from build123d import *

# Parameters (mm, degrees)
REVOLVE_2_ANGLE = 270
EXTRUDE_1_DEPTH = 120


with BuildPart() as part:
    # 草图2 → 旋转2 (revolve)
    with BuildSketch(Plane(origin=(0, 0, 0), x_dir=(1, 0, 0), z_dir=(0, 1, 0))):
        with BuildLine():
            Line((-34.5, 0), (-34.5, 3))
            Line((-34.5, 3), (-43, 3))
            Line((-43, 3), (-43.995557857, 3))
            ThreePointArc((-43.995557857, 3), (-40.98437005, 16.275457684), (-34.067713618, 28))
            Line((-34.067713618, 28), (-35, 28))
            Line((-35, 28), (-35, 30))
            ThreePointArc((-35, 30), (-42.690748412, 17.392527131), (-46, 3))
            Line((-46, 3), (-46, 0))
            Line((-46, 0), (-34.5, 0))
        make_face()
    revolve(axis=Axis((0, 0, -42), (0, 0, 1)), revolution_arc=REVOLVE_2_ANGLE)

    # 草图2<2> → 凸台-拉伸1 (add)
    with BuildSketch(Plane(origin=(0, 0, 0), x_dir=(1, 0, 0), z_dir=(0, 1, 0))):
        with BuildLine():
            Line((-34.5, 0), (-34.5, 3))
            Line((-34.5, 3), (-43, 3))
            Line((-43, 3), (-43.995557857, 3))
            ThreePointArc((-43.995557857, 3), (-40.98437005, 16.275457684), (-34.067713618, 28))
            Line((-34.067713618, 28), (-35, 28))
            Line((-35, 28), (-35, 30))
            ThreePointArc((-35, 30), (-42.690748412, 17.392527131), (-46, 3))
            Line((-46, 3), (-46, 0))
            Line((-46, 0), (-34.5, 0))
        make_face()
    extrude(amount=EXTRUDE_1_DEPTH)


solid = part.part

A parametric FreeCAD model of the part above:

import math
import FreeCAD as App
import Part
import Sketcher
Q = App.Units.Quantity

doc = App.newDocument("Part")
body = doc.addObject("PartDesign::Body", "Body")

# Sketch on XZ plane
sketch1 = body.newObject("Sketcher::SketchObject", "Sketch")
sketch1.AttachmentSupport = (doc.getObject("XZ_Plane"), [""])
sketch1.MapMode = "FlatFace"
sketch1.addGeometry([
    Part.LineSegment(App.Vector(-34.5, 0, 0), App.Vector(-34.5, -3, 0)),  # 0
    Part.LineSegment(App.Vector(-34.5, -3, 0), App.Vector(-44, -3, 0)),  # 1
    Part.ArcOfCircle(Part.Circle(App.Vector(0, 0, 0), App.Vector(0, 0, 1), 44.1), math.radians(-176), math.radians(-141)),  # 2
    Part.LineSegment(App.Vector(-34.1, -28, 0), App.Vector(-35, -28, 0)),  # 3
    Part.LineSegment(App.Vector(-35, -28, 0), App.Vector(-35, -30, 0)),  # 4
    Part.ArcOfCircle(Part.Circle(App.Vector(0, 0, 0), App.Vector(0, 0, 1), 46.1), math.radians(-176), math.radians(-139)),  # 5
    Part.LineSegment(App.Vector(-46, -3, 0), App.Vector(-46, 0, 0)),  # 6
    Part.LineSegment(App.Vector(-46, 0, 0), App.Vector(-34.5, 0, 0)),  # 7
], False)
sketch1.addConstraint([
    Sketcher.Constraint("Coincident", 0, 2, 1, 1),
    Sketcher.Constraint("Coincident", 1, 2, 2, 1),
    Sketcher.Constraint("Coincident", 2, 2, 3, 1),
    Sketcher.Constraint("Coincident", 3, 2, 4, 1),
    Sketcher.Constraint("Coincident", 4, 2, 5, 2),
    Sketcher.Constraint("Coincident", 5, 1, 6, 1),
    Sketcher.Constraint("Coincident", 6, 2, 7, 1),
    Sketcher.Constraint("Coincident", 7, 2, 0, 1),
    Sketcher.Constraint("Vertical", 0),
    Sketcher.Constraint("Horizontal", 1),
    Sketcher.Constraint("Horizontal", 3),
    Sketcher.Constraint("Vertical", 4),
    Sketcher.Constraint("Vertical", 6),
    Sketcher.Constraint("Horizontal", 7),
    Sketcher.Constraint("Coincident", 2, 3, -1, 1),
    Sketcher.Constraint("Coincident", 5, 3, -1, 1),
    Sketcher.Constraint("PointOnObject", 6, 2, -1),
    Sketcher.Constraint("Horizontal", 1, 2, 5, 1),
    Sketcher.Constraint("DistanceY", 0, 2, 0, 1, Q("3 mm")),
    Sketcher.Constraint("DistanceY", 4, 2, 4, 1, Q("2 mm")),
    Sketcher.Constraint("DistanceX", 7, 1, 7, 2, Q("11.5 mm")),
    Sketcher.Constraint("DistanceY", 2, 2, -1, 1, Q("28 mm")),
    Sketcher.Constraint("DistanceX", 3, 2, -1, 1, Q("35 mm")),
    Sketcher.Constraint("Radius", 2, Q("44.097722 mm")),
])
revolution = body.newObject("PartDesign::Revolution", "Revolution")
revolution.Profile = sketch1
revolution.ReferenceAxis = (sketch1, ["V_Axis"])
revolution.Angle = 270

# Sketch on XZ plane
sketch2 = body.newObject("Sketcher::SketchObject", "Sketch001")
sketch2.AttachmentSupport = (doc.getObject("XZ_Plane"), [""])
sketch2.MapMode = "FlatFace"
sketch2.addGeometry([
    Part.LineSegment(App.Vector(-34.5, 0, 0), App.Vector(-34.5, -3, 0)),  # 0
    Part.LineSegment(App.Vector(-34.5, -3, 0), App.Vector(-44, -3, 0)),  # 1
    Part.ArcOfCircle(Part.Circle(App.Vector(0, 0, 0), App.Vector(0, 0, 1), 44.1), math.radians(-176), math.radians(-141)),  # 2
    Part.LineSegment(App.Vector(-34.1, -28, 0), App.Vector(-35, -28, 0)),  # 3
    Part.LineSegment(App.Vector(-35, -28, 0), App.Vector(-35, -30, 0)),  # 4
    Part.ArcOfCircle(Part.Circle(App.Vector(0, 0, 0), App.Vector(0, 0, 1), 46.1), math.radians(-176), math.radians(-139)),  # 5
    Part.LineSegment(App.Vector(-46, -3, 0), App.Vector(-46, 0, 0)),  # 6
    Part.LineSegment(App.Vector(-46, 0, 0), App.Vector(-34.5, 0, 0)),  # 7
], False)
sketch2.addConstraint([
    Sketcher.Constraint("Coincident", 0, 2, 1, 1),
    Sketcher.Constraint("Coincident", 1, 2, 2, 1),
    Sketcher.Constraint("Coincident", 2, 2, 3, 1),
    Sketcher.Constraint("Coincident", 3, 2, 4, 1),
    Sketcher.Constraint("Coincident", 4, 2, 5, 2),
    Sketcher.Constraint("Coincident", 5, 1, 6, 1),
    Sketcher.Constraint("Coincident", 6, 2, 7, 1),
    Sketcher.Constraint("Coincident", 7, 2, 0, 1),
    Sketcher.Constraint("Vertical", 0),
    Sketcher.Constraint("Horizontal", 1),
    Sketcher.Constraint("Horizontal", 3),
    Sketcher.Constraint("Vertical", 4),
    Sketcher.Constraint("Vertical", 6),
    Sketcher.Constraint("Horizontal", 7),
    Sketcher.Constraint("Coincident", 2, 3, -1, 1),
    Sketcher.Constraint("Coincident", 5, 3, -1, 1),
    Sketcher.Constraint("PointOnObject", 6, 2, -1),
    Sketcher.Constraint("Horizontal", 1, 2, 5, 1),
    Sketcher.Constraint("DistanceY", 0, 2, 0, 1, Q("3 mm")),
    Sketcher.Constraint("DistanceY", 4, 2, 4, 1, Q("2 mm")),
    Sketcher.Constraint("DistanceX", 7, 1, 7, 2, Q("11.5 mm")),
    Sketcher.Constraint("DistanceY", 2, 2, -1, 1, Q("28 mm")),
    Sketcher.Constraint("DistanceX", 3, 2, -1, 1, Q("35 mm")),
    Sketcher.Constraint("Radius", 2, Q("44.097722 mm")),
])
pad1 = body.newObject("PartDesign::Pad", "Pad")
pad1.Profile = sketch2
pad1.Length = 120
pad1.Reversed = True

doc.recompute()
